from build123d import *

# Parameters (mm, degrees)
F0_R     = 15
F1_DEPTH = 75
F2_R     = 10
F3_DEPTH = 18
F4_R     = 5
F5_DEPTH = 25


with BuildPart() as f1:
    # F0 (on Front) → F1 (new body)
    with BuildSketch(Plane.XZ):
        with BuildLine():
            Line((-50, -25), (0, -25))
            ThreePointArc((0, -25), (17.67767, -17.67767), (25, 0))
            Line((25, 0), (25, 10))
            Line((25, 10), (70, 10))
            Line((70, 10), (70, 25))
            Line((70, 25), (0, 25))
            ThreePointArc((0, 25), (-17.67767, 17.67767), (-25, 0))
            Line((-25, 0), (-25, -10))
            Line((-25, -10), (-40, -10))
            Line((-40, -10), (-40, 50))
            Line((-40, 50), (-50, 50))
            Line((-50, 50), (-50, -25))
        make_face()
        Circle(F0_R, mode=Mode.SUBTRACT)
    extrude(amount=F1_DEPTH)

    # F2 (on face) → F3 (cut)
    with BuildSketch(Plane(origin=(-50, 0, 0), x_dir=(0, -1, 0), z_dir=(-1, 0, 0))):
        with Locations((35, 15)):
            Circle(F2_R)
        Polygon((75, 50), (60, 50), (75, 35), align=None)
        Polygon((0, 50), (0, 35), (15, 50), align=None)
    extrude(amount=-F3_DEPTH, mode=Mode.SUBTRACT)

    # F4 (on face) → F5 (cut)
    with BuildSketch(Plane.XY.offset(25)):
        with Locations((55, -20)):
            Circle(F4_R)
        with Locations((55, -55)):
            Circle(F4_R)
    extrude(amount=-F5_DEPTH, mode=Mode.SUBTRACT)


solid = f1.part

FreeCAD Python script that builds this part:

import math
import FreeCAD as App
import Part
import Sketcher
Q = App.Units.Quantity

doc = App.newDocument("Part")
body = doc.addObject("PartDesign::Body", "Body")

sketch1 = body.newObject("Sketcher::SketchObject", "Sketch")
sketch1.AttachmentSupport = (doc.getObject("XZ_Plane"), [""])
sketch1.MapMode = "FlatFace"
sketch1.addGeometry(Part.LineSegment(App.Vector(-50, -25, 0), App.Vector(0, -25, 0)), False)
sketch1.addGeometry(Part.ArcOfCircle(Part.Circle(App.Vector(0, 0, 0), App.Vector(0, 0, 1), 25), math.radians(-90), math.radians(0)), False)
sketch1.addGeometry(Part.LineSegment(App.Vector(25, 0, 0), App.Vector(25, 10, 0)), False)
sketch1.addGeometry(Part.LineSegment(App.Vector(25, 10, 0), App.Vector(70, 10, 0)), False)
sketch1.addGeometry(Part.LineSegment(App.Vector(70, 10, 0), App.Vector(70, 25, 0)), False)
sketch1.addGeometry(Part.LineSegment(App.Vector(70, 25, 0), App.Vector(0, 25, 0)), False)
sketch1.addGeometry(Part.ArcOfCircle(Part.Circle(App.Vector(0, 0, 0), App.Vector(0, 0, 1), 25), math.radians(90), math.radians(180)), False)
sketch1.addGeometry(Part.LineSegment(App.Vector(-25, 0, 0), App.Vector(-25, -10, 0)), False)
sketch1.addGeometry(Part.LineSegment(App.Vector(-25, -10, 0), App.Vector(-40, -10, 0)), False)
sketch1.addGeometry(Part.LineSegment(App.Vector(-40, -10, 0), App.Vector(-40, 50, 0)), False)
sketch1.addGeometry(Part.LineSegment(App.Vector(-40, 50, 0), App.Vector(-50, 50, 0)), False)
sketch1.addGeometry(Part.LineSegment(App.Vector(-50, 50, 0), App.Vector(-50, -25, 0)), False)
sketch1.addGeometry(Part.Circle(App.Vector(0, 0, 0), App.Vector(0, 0, 1), 15), False)
sketch1.addConstraint(Sketcher.Constraint("Tangent", 0, 2, 1, 1))
sketch1.addConstraint(Sketcher.Constraint("Tangent", 1, 2, 2, 1))
sketch1.addConstraint(Sketcher.Constraint("Coincident", 2, 2, 3, 1))
sketch1.addConstraint(Sketcher.Constraint("Coincident", 3, 2, 4, 1))
sketch1.addConstraint(Sketcher.Constraint("Coincident", 4, 2, 5, 1))
sketch1.addConstraint(Sketcher.Constraint("Tangent", 5, 2, 6, 1))
sketch1.addConstraint(Sketcher.Constraint("Tangent", 6, 2, 7, 1))
sketch1.addConstraint(Sketcher.Constraint("Coincident", 7, 2, 8, 1))
sketch1.addConstraint(Sketcher.Constraint("Coincident", 8, 2, 9, 1))
sketch1.addConstraint(Sketcher.Constraint("Coincident", 9, 2, 10, 1))
sketch1.addConstraint(Sketcher.Constraint("Coincident", 10, 2, 11, 1))
sketch1.addConstraint(Sketcher.Constraint("Coincident", 11, 2, 0, 1))
sketch1.addConstraint(Sketcher.Constraint("Horizontal", 0))
sketch1.addConstraint(Sketcher.Constraint("Vertical", 2))
sketch1.addConstraint(Sketcher.Constraint("Horizontal", 3))
sketch1.addConstraint(Sketcher.Constraint("Vertical", 4))
sketch1.addConstraint(Sketcher.Constraint("Horizontal", 5))
sketch1.addConstraint(Sketcher.Constraint("Vertical", 7))
sketch1.addConstraint(Sketcher.Constraint("Horizontal", 8))
sketch1.addConstraint(Sketcher.Constraint("Vertical", 9))
sketch1.addConstraint(Sketcher.Constraint("Horizontal", 10))
sketch1.addConstraint(Sketcher.Constraint("Vertical", 11))
sketch1.addConstraint(Sketcher.Constraint("Coincident", 1, 3, -1, 1))
sketch1.addConstraint(Sketcher.Constraint("Coincident", 6, 3, -1, 1))
sketch1.addConstraint(Sketcher.Constraint("Coincident", 12, 3, -1, 1))
sketch1.addConstraint(Sketcher.Constraint("Equal", 1, 6))
sketch1.addConstraint(Sketcher.Constraint("Equal", 10, 2))
sketch1.addConstraint(Sketcher.Constraint("Equal", 8, 4))
sketch1.addConstraint(Sketcher.Constraint("Equal", 2, 7))
sketch1.addConstraint(Sketcher.Constraint("Diameter", 12, Q("30 mm")))
sketch1.addConstraint(Sketcher.Constraint("Radius", 1, Q("24.999998 mm")))
sketch1.addConstraint(Sketcher.Constraint("DistanceX", 3, 1, 3, 2, Q("45 mm")))
sketch1.addConstraint(Sketcher.Constraint("DistanceX", 8, 2, 8, 1, Q("15 mm")))
sketch1.addConstraint(Sketcher.Constraint("DistanceY", 9, 1, 9, 2, Q("60 mm")))
pad1 = body.newObject("PartDesign::Pad", "Pad")
pad1.Profile = sketch1
pad1.Length = 75

sketch2 = body.newObject("Sketcher::SketchObject", "Sketch001")
sketch2.AttachmentSupport = (doc.getObject("YZ_Plane"), [""])
sketch2.MapMode = "FlatFace"
sketch2.AttachmentOffset = App.Placement(App.Vector(0, 0, -50), App.Rotation())
sketch2.addGeometry(Part.Circle(App.Vector(-35, 15, 0), App.Vector(0, 0, 1), 10), False)
sketch2.addGeometry(Part.LineSegment(App.Vector(-75, 50, 0), App.Vector(-60, 50, 0)), False)
sketch2.addGeometry(Part.LineSegment(App.Vector(-60, 50, 0), App.Vector(-75, 35, 0)), False)
sketch2.addGeometry(Part.LineSegment(App.Vector(-75, 35, 0), App.Vector(-75, 50, 0)), False)
sketch2.addGeometry(Part.LineSegment(App.Vector(0, 50, 0), App.Vector(0, 35, 0)), False)
sketch2.addGeometry(Part.LineSegment(App.Vector(0, 35, 0), App.Vector(-15, 50, 0)), False)
sketch2.addGeometry(Part.LineSegment(App.Vector(-15, 50, 0), App.Vector(0, 50, 0)), False)
sketch2.addConstraint(Sketcher.Constraint("Coincident", 1, 2, 2, 1))
sketch2.addConstraint(Sketcher.Constraint("Coincident", 2, 2, 3, 1))
sketch2.addConstraint(Sketcher.Constraint("Coincident", 3, 2, 1, 1))
sketch2.addConstraint(Sketcher.Constraint("Coincident", 4, 2, 5, 1))
sketch2.addConstraint(Sketcher.Constraint("Coincident", 5, 2, 6, 1))
sketch2.addConstraint(Sketcher.Constraint("Coincident", 6, 2, 4, 1))
sketch2.addConstraint(Sketcher.Constraint("Horizontal", 1))
sketch2.addConstraint(Sketcher.Constraint("Vertical", 3))
sketch2.addConstraint(Sketcher.Constraint("Vertical", 4))
sketch2.addConstraint(Sketcher.Constraint("Horizontal", 6))
sketch2.addConstraint(Sketcher.Constraint("PointOnObject", 4, 2, -2))
sketch2.addConstraint(Sketcher.Constraint("Perpendicular", 2, 5))
sketch2.addConstraint(Sketcher.Constraint("Horizontal", 2, 2, 4, 2))
sketch2.addConstraint(Sketcher.Constraint("Horizontal", 3, 2, 5, 2))
sketch2.addConstraint(Sketcher.Constraint("Equal", 1, 6))
sketch2.addConstraint(Sketcher.Constraint("Diameter", 0, Q("20 mm")))
sketch2.addConstraint(Sketcher.Constraint("DistanceX", 1, 1, 1, 2, Q("15 mm")))
sketch2.addConstraint(Sketcher.Constraint("DistanceX", 0, 3, -1, 1, Q("35 mm")))
sketch2.addConstraint(Sketcher.Constraint("DistanceY", -1, 1, 0, 3, Q("15 mm")))
sketch2.addConstraint(Sketcher.Constraint("DistanceX", 1, 2, -1, 1, Q("60 mm")))
sketch2.addConstraint(Sketcher.Constraint("DistanceY", -1, 1, 1, 2, Q("50 mm")))
pocket1 = body.newObject("PartDesign::Pocket", "Pocket")
pocket1.Profile = sketch2
pocket1.Length = 18
pocket1.Reversed = True

sketch3 = body.newObject("Sketcher::SketchObject", "Sketch002")
sketch3.AttachmentSupport = (doc.getObject("XY_Plane"), [""])
sketch3.MapMode = "FlatFace"
sketch3.AttachmentOffset = App.Placement(App.Vector(0, 0, 25), App.Rotation())
sketch3.addGeometry(Part.Circle(App.Vector(55, -20, 0), App.Vector(0, 0, 1), 5), False)
sketch3.addGeometry(Part.Circle(App.Vector(55, -55, 0), App.Vector(0, 0, 1), 5), False)
sketch3.addConstraint(Sketcher.Constraint("Equal", 0, 1))
sketch3.addConstraint(Sketcher.Constraint("Vertical", 0, 3, 1, 3))
sketch3.addConstraint(Sketcher.Constraint("Diameter", 0, Q("10 mm")))
sketch3.addConstraint(Sketcher.Constraint("DistanceX", -1, 1, 0, 3, Q("55 mm")))
sketch3.addConstraint(Sketcher.Constraint("DistanceY", 0, 3, -1, 1, Q("20 mm")))
sketch3.addConstraint(Sketcher.Constraint("DistanceY", 1, 3, -1, 1, Q("55 mm")))
pocket2 = body.newObject("PartDesign::Pocket", "Pocket001")
pocket2.Profile = sketch3
pocket2.Length = 25

doc.recompute()
